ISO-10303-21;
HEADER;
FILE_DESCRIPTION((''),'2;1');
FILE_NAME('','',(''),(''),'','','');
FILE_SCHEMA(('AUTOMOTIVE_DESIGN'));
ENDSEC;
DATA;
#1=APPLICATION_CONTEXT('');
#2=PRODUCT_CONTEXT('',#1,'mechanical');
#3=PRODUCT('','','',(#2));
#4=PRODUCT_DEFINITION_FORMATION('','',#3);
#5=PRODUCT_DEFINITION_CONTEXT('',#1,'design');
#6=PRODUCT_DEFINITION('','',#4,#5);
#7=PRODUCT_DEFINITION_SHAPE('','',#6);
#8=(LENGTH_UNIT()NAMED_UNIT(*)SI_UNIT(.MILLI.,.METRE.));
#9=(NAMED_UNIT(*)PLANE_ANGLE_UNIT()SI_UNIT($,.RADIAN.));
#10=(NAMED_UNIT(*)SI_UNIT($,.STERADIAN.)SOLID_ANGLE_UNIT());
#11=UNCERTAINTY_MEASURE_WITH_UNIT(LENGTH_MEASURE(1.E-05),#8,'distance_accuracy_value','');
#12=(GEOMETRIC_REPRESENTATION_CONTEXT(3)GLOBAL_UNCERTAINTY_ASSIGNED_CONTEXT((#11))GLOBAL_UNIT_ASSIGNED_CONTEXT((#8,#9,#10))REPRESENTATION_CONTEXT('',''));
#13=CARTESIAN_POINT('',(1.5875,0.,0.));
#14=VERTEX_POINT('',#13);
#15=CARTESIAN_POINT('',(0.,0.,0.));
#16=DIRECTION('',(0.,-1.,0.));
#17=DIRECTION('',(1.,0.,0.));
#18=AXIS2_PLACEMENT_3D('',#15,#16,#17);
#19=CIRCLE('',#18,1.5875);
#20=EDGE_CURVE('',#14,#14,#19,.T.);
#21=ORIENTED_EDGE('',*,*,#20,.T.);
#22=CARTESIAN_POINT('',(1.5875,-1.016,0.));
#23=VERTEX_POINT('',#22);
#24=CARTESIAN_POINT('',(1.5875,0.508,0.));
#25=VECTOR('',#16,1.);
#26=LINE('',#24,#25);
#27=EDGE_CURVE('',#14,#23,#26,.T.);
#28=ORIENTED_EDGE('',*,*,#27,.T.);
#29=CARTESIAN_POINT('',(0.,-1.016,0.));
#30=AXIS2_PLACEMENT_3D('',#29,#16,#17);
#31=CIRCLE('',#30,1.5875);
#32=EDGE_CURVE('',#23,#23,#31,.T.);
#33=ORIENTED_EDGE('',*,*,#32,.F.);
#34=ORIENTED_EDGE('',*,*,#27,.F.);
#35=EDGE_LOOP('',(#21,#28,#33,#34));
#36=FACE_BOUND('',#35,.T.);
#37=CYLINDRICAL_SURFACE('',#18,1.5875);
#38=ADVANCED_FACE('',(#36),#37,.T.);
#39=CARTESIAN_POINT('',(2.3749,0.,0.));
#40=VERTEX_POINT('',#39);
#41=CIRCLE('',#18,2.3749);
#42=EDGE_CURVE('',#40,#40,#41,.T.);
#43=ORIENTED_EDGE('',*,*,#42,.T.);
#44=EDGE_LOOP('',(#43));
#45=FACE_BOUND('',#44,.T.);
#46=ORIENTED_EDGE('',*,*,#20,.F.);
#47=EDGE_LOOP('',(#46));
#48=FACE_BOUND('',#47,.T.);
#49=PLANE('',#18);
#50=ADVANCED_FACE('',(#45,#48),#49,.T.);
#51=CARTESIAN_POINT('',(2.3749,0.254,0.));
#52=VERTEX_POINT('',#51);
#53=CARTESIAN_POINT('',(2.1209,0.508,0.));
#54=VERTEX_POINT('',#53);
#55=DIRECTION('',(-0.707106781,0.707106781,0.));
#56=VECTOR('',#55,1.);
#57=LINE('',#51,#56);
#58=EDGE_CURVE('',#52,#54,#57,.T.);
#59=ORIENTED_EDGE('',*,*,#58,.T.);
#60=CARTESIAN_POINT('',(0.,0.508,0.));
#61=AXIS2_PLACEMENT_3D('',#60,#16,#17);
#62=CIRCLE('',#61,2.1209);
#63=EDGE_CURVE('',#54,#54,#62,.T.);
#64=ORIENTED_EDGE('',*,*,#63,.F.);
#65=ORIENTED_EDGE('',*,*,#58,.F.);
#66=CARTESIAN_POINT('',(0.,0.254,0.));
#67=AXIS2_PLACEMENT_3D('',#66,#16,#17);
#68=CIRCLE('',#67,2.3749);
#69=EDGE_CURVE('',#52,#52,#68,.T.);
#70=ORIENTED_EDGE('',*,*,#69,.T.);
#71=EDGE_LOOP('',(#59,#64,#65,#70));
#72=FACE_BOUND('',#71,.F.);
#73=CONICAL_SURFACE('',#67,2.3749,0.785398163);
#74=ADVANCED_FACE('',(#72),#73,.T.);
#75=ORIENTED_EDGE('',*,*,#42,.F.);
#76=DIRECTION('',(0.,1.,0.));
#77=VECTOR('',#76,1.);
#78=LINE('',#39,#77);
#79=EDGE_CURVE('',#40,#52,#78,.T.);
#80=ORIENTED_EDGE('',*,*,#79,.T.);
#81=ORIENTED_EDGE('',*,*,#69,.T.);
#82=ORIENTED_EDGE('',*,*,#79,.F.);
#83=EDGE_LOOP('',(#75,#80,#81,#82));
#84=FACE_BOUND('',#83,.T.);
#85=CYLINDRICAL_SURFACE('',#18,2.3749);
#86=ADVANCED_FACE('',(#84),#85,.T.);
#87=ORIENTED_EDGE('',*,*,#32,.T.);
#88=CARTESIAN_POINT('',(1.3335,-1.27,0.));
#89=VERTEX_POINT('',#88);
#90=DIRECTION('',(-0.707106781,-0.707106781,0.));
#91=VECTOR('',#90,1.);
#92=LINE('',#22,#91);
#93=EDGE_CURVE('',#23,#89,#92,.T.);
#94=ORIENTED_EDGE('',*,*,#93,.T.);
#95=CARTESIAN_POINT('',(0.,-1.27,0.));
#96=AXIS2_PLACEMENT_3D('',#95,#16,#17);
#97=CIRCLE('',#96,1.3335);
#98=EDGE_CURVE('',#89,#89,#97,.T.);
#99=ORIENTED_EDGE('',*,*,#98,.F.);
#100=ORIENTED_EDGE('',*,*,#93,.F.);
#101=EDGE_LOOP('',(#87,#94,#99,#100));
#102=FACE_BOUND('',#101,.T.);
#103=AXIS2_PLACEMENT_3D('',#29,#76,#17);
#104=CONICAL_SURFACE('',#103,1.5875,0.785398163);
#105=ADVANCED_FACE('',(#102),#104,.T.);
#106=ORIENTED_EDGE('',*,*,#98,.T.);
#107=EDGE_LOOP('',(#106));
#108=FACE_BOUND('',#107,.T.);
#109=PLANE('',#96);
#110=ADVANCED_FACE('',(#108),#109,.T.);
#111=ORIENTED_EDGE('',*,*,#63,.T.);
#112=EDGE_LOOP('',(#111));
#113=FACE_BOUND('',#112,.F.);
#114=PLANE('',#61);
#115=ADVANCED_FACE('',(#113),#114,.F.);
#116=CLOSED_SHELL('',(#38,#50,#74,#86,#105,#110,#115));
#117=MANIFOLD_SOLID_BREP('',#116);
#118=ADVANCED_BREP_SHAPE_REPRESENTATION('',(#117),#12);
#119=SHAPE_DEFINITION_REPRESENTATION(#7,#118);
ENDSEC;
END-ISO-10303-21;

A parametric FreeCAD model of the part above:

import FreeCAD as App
import Part
import Sketcher
Q = App.Units.Quantity


def edges_at(feature, points):
    """Names of the edges that pass closest to the given points."""
    edges = feature.Shape.Edges
    near = lambda p: min(range(len(edges)), key=lambda i: edges[i].distToShape(Part.Vertex(*p))[0])
    return sorted({f"Edge{near(p) + 1}" for p in points})

doc = App.newDocument("Part")
body = doc.addObject("PartDesign::Body", "Body")

# Sketch on XZ plane
sketch1 = body.newObject("Sketcher::SketchObject", "Sketch")
sketch1.AttachmentSupport = (doc.getObject("XZ_Plane"), [""])
sketch1.MapMode = "FlatFace"
sketch1.addGeometry(Part.Circle(App.Vector(0, 0, 0), App.Vector(0, 0, 1), 1.5875), False)
sketch1.addConstraint([
    Sketcher.Constraint("Coincident", 0, 3, -1, 1),
    Sketcher.Constraint("Diameter", 0, Q("0.125 in")),
])
pad1 = body.newObject("PartDesign::Pad", "Pad")
pad1.Profile = sketch1
pad1.Type = "TwoLengths"
pad1.Length = Q("0.05 in")
pad1.Length2 = Q("0.02 in")

# Sketch on XZ plane
sketch2 = body.newObject("Sketcher::SketchObject", "Sketch001")
sketch2.AttachmentSupport = (doc.getObject("XZ_Plane"), [""])
sketch2.MapMode = "FlatFace"
sketch2.addGeometry([
    Part.Circle(App.Vector(0, 0, 0), App.Vector(0, 0, 1), 2.3749),
    Part.Circle(App.Vector(0, 0, 0), App.Vector(0, 0, 1), 1.5875),
], False)
sketch2.addConstraint([
    Sketcher.Constraint("Coincident", 0, 3, -1, 1),
    Sketcher.Constraint("Coincident", 1, 3, -1, 1),
    Sketcher.Constraint("Diameter", 0, Q("0.187 in")),
    Sketcher.Constraint("Diameter", 1, Q("0.125 in")),
])
pad2 = body.newObject("PartDesign::Pad", "Pad001")
pad2.Profile = sketch2
pad2.Length = Q("0.02 in")
pad2.Reversed = True
doc.recompute()

chamfer = body.newObject("PartDesign::Chamfer", "Chamfer")
chamfer.Base = (pad2, edges_at(pad2, [(-2.375, 0.508, 0), (-1.587, -1.27, 0)]))
chamfer.Size = Q("0.01 in")

doc.recompute()
